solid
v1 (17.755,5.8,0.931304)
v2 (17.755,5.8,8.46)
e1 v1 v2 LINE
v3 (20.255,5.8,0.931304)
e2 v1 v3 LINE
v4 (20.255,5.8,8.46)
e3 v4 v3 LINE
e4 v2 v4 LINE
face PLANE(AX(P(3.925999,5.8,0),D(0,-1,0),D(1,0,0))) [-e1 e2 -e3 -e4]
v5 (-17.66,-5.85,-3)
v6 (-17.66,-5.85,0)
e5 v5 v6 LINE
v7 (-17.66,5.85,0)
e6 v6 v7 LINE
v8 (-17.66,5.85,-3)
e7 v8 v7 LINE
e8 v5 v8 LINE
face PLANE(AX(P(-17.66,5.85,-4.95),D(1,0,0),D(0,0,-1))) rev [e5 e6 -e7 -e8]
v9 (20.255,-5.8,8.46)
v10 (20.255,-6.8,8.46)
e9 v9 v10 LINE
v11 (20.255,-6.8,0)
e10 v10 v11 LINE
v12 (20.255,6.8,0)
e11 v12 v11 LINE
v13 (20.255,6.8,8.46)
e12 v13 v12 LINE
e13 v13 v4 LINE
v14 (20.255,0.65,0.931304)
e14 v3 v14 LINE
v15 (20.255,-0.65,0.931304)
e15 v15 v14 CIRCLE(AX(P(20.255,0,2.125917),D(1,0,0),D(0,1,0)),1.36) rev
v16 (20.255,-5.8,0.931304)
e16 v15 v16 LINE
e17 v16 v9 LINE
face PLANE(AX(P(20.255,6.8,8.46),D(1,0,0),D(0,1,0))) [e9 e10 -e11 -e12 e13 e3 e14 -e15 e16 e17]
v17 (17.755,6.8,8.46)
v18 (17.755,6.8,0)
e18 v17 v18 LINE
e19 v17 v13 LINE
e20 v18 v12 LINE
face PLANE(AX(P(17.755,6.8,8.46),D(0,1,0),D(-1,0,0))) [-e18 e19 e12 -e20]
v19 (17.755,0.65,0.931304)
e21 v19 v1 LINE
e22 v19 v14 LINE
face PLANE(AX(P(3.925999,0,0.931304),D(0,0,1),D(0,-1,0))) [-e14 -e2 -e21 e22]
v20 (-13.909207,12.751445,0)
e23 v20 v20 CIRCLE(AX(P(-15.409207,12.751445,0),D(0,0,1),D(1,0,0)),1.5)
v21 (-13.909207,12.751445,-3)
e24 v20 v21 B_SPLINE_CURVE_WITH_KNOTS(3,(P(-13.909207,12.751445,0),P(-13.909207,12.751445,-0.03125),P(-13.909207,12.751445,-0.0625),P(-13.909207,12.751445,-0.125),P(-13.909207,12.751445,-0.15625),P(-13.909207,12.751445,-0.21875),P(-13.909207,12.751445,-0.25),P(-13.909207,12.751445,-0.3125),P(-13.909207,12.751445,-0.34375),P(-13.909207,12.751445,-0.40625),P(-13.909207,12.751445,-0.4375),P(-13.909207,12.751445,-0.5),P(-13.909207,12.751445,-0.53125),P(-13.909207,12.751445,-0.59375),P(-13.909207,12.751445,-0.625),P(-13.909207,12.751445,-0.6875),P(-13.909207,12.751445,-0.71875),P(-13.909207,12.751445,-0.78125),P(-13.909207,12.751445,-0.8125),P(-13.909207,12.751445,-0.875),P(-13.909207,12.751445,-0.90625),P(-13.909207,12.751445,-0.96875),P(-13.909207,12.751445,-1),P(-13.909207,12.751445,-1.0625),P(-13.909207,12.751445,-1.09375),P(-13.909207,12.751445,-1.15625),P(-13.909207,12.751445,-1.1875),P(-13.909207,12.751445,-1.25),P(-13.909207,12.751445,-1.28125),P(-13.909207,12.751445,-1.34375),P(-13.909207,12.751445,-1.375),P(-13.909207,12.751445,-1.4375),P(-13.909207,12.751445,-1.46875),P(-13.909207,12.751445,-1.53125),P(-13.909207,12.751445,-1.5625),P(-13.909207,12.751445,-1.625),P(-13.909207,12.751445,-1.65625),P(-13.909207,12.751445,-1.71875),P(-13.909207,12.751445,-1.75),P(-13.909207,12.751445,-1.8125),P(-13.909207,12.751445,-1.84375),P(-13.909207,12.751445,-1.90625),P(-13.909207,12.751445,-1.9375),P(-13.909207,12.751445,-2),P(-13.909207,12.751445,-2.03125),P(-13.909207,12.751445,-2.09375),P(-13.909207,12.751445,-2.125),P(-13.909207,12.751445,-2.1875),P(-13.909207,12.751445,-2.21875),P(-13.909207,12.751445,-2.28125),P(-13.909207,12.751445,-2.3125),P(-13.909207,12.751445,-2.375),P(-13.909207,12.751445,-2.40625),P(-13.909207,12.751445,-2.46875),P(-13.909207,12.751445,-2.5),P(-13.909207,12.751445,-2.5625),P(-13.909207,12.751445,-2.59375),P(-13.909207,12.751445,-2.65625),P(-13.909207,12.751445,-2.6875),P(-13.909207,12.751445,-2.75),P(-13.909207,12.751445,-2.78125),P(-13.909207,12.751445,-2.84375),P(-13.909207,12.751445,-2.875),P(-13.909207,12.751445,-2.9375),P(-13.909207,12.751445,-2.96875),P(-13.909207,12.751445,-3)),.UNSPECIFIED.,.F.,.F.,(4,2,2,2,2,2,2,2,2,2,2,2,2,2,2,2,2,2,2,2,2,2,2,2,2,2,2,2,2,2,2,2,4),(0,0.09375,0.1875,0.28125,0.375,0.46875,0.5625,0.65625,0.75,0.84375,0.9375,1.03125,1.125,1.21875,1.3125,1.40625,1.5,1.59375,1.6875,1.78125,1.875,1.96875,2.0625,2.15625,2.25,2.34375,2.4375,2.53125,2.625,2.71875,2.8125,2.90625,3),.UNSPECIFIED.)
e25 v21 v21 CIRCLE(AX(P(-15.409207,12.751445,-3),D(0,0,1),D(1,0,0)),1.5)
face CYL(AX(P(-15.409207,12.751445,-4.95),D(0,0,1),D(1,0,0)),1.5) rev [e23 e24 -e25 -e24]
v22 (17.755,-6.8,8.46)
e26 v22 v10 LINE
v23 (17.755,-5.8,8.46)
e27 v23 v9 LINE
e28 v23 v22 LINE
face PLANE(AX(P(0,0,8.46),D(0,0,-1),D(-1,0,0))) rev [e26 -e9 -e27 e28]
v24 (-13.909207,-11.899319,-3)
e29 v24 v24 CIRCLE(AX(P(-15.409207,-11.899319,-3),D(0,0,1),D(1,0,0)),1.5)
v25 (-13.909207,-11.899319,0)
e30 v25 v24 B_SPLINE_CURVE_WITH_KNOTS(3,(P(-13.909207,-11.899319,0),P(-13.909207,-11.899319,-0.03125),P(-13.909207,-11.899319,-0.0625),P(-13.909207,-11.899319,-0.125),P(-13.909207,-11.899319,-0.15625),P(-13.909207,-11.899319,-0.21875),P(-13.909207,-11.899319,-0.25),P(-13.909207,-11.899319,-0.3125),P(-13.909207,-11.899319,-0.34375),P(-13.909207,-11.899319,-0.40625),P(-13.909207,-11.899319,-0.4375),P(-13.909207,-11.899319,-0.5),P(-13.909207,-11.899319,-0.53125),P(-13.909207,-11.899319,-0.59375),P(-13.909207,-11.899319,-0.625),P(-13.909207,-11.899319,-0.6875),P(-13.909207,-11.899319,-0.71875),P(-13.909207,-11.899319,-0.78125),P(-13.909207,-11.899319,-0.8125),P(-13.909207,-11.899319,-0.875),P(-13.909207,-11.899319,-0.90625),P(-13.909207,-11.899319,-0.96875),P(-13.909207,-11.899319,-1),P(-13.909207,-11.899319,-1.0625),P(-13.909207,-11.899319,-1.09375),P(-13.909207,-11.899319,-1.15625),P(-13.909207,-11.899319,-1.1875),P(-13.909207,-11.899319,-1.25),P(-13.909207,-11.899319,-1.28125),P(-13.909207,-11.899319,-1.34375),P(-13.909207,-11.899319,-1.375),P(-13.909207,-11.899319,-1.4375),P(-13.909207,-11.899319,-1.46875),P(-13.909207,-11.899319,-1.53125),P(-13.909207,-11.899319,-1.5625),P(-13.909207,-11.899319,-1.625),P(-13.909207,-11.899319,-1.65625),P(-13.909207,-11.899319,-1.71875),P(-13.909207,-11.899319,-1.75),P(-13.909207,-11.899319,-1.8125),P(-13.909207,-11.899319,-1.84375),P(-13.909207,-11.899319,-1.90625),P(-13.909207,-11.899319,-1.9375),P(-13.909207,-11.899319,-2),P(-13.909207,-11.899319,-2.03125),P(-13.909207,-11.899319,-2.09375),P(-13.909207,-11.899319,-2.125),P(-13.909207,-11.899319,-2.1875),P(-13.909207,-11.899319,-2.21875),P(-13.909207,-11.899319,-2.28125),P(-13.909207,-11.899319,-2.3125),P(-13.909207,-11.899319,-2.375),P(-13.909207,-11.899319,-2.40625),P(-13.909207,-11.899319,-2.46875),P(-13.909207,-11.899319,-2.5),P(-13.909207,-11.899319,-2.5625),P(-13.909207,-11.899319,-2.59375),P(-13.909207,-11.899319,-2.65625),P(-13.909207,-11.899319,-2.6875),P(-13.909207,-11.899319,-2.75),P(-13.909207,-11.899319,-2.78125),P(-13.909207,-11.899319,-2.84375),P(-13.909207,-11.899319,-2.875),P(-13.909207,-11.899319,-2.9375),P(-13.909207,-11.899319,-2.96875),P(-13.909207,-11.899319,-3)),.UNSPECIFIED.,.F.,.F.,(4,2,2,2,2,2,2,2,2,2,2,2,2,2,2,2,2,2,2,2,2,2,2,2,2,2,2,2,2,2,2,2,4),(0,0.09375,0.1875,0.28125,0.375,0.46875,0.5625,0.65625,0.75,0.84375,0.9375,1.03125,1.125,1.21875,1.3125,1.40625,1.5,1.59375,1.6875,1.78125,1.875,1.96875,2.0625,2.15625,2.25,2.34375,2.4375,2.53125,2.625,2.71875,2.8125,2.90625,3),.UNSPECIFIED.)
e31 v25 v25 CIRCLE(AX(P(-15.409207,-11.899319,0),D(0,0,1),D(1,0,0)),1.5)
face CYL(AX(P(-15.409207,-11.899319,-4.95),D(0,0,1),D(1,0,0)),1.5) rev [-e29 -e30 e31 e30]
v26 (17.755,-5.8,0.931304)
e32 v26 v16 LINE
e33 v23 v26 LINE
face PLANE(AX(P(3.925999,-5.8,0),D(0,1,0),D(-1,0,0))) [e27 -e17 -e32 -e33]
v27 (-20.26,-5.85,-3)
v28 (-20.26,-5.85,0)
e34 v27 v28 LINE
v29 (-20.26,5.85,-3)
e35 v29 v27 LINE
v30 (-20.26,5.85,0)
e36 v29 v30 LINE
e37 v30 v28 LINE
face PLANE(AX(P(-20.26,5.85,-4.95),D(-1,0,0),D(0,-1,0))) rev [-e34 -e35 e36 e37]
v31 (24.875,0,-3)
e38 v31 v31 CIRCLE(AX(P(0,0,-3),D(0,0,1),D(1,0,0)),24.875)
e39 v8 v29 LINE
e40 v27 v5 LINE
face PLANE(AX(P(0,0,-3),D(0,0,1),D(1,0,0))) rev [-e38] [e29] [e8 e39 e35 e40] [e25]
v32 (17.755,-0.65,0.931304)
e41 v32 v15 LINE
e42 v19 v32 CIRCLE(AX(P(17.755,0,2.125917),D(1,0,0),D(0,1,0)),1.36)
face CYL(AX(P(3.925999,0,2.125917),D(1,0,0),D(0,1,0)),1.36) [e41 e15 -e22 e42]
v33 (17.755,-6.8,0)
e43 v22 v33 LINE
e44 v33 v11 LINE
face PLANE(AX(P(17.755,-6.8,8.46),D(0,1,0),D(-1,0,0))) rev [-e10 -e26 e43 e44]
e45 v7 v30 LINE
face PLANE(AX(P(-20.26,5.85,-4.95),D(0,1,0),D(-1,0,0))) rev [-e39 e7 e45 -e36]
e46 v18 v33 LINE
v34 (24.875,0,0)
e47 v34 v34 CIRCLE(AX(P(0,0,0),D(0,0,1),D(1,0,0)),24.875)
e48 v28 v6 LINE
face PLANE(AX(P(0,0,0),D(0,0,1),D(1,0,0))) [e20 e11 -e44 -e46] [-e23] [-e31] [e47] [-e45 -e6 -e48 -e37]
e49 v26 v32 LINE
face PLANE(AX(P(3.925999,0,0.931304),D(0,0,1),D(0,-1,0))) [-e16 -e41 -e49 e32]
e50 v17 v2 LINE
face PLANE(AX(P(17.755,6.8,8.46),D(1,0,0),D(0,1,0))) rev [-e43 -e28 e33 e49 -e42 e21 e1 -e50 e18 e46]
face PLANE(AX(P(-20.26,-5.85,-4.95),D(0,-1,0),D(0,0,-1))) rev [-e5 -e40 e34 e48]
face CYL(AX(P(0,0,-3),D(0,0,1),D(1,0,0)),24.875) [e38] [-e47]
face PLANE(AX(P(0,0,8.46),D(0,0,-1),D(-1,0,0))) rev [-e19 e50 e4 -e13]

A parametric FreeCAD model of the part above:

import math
import FreeCAD as App
import Part
import Sketcher
from FreeCAD import Vector
Q = App.Units.Quantity

doc = App.newDocument("Part")
body = doc.addObject("PartDesign::Body", "Body")

sketch1 = doc.addObject("Sketcher::SketchObject", "Sketch")
body.addObject(sketch1)
sketch1.AttachmentSupport = (doc.XY_Plane, [""])
sketch1.MapMode = "FlatFace"
sketch1.addGeometry(Part.Circle(Vector(0, 0, 0), Vector(0, 0, 1), 24.875), False)
sketch1.addConstraint(Sketcher.Constraint("Coincident", 0, 3, -1, 1))
sketch1.addConstraint(Sketcher.Constraint("Diameter", 0, Q("49.75 mm")))
pad1 = doc.addObject("PartDesign::Pad", "Pad")
body.addObject(pad1)
pad1.Profile = sketch1
pad1.Length = 3
pad1.Reversed = True

sketch2 = doc.addObject("Sketcher::SketchObject", "Sketch001")
body.addObject(sketch2)
sketch2.AttachmentSupport = (doc.XY_Plane, [""])
sketch2.MapMode = "FlatFace"
sketch2.addGeometry(Part.LineSegment(Vector(17.755, 6.8, 0), Vector(17.755, -6.8, 0)), False)
sketch2.addGeometry(Part.LineSegment(Vector(17.755, -6.8, 0), Vector(20.255, -6.8, 0)), False)
sketch2.addGeometry(Part.LineSegment(Vector(20.255, -6.8, 0), Vector(20.255, 6.8, 0)), False)
sketch2.addGeometry(Part.LineSegment(Vector(20.255, 6.8, 0), Vector(17.755, 6.8, 0)), False)
sketch2.addConstraint(Sketcher.Constraint("Coincident", 0, 2, 1, 1))
sketch2.addConstraint(Sketcher.Constraint("Coincident", 1, 2, 2, 1))
sketch2.addConstraint(Sketcher.Constraint("Coincident", 2, 2, 3, 1))
sketch2.addConstraint(Sketcher.Constraint("Coincident", 3, 2, 0, 1))
sketch2.addConstraint(Sketcher.Constraint("Vertical", 0))
sketch2.addConstraint(Sketcher.Constraint("Horizontal", 1))
sketch2.addConstraint(Sketcher.Constraint("Vertical", 2))
sketch2.addConstraint(Sketcher.Constraint("Horizontal", 3))
sketch2.addConstraint(Sketcher.Constraint("DistanceX", 1, 1, 1, 2, Q("2.5 mm")))
sketch2.addConstraint(Sketcher.Constraint("DistanceY", 0, 2, 0, 1, Q("13.6 mm")))
sketch2.addConstraint(Sketcher.Constraint("DistanceY", 0, 2, -1, 1, Q("6.8 mm")))
sketch2.addConstraint(Sketcher.Constraint("DistanceX", -1, 1, 0, 2, Q("17.755 mm")))
pad2 = doc.addObject("PartDesign::Pad", "Pad001")
body.addObject(pad2)
pad2.Profile = sketch2
pad2.Length = 8.46

sketch3 = doc.addObject("Sketcher::SketchObject", "Sketch002")
body.addObject(sketch3)
sketch3.AttachmentSupport = (doc.YZ_Plane, [""])
sketch3.MapMode = "FlatFace"
sketch3.AttachmentOffset = App.Placement(Vector(0, 0, 20.255), App.Rotation())
sketch3.addGeometry(Part.ArcOfCircle(Part.Circle(Vector(0, 2.125917, 0), Vector(0, 0, 1), 1.36), math.radians(-61.448977), math.radians(241.448977)), False)
sketch3.addGeometry(Part.LineSegment(Vector(0.65, 0.931304, 0), Vector(5.8, 0.931304, 0)), False)
sketch3.addGeometry(Part.LineSegment(Vector(5.8, 0.931304, 0), Vector(5.8, 8.46, 0)), False)
sketch3.addGeometry(Part.LineSegment(Vector(5.8, 8.46, 0), Vector(-5.8, 8.46, 0)), False)
sketch3.addGeometry(Part.LineSegment(Vector(-5.8, 8.46, 0), Vector(-5.8, 0.931304, 0)), False)
sketch3.addGeometry(Part.LineSegment(Vector(-5.8, 0.931304, 0), Vector(-0.65, 0.931304, 0)), False)
sketch3.addConstraint(Sketcher.Constraint("Coincident", 0, 1, 1, 1))
sketch3.addConstraint(Sketcher.Constraint("Coincident", 1, 2, 2, 1))
sketch3.addConstraint(Sketcher.Constraint("Coincident", 2, 2, 3, 1))
sketch3.addConstraint(Sketcher.Constraint("Coincident", 3, 2, 4, 1))
sketch3.addConstraint(Sketcher.Constraint("Coincident", 4, 2, 5, 1))
sketch3.addConstraint(Sketcher.Constraint("Coincident", 5, 2, 0, 2))
sketch3.addConstraint(Sketcher.Constraint("Horizontal", 1))
sketch3.addConstraint(Sketcher.Constraint("Vertical", 2))
sketch3.addConstraint(Sketcher.Constraint("Horizontal", 3))
sketch3.addConstraint(Sketcher.Constraint("Vertical", 4))
sketch3.addConstraint(Sketcher.Constraint("Horizontal", 5))
sketch3.addConstraint(Sketcher.Constraint("Symmetric", 1, 2, 4, 2, -2))
sketch3.addConstraint(Sketcher.Constraint("PointOnObject", 0, 3, -2))
sketch3.addConstraint(Sketcher.Constraint("Radius", 0, Q("1.36 mm")))
sketch3.addConstraint(Sketcher.Constraint("DistanceX", 3, 2, 3, 1, Q("11.6 mm")))
sketch3.addConstraint(Sketcher.Constraint("DistanceX", 1, 1, 1, 2, Q("5.15 mm")))
sketch3.addConstraint(Sketcher.Constraint("DistanceY", -1, 1, 2, 2, Q("8.46 mm")))
sketch3.addConstraint(Sketcher.Constraint("DistanceY", 2, 1, 2, 2, Q("7.528696 mm")))
pocket1 = doc.addObject("PartDesign::Pocket", "Pocket")
body.addObject(pocket1)
pocket1.Profile = sketch3
pocket1.Length = 2.5

sketch4 = doc.addObject("Sketcher::SketchObject", "Sketch003")
body.addObject(sketch4)
sketch4.AttachmentSupport = (doc.XY_Plane, [""])
sketch4.MapMode = "FlatFace"
sketch4.addGeometry(Part.Circle(Vector(-15.409207, 12.751445, 0), Vector(0, 0, 1), 1.5), False)
sketch4.addGeometry(Part.Circle(Vector(-15.409207, -11.899319, 0), Vector(0, 0, 1), 1.5), False)
sketch4.addConstraint(Sketcher.Constraint("Equal", 0, 1))
sketch4.addConstraint(Sketcher.Constraint("Vertical", 0, 3, 1, 3))
sketch4.addConstraint(Sketcher.Constraint("Diameter", 0, Q("3 mm")))
sketch4.addConstraint(Sketcher.Constraint("DistanceY", 1, 3, -1, 1, Q("11.899319 mm")))
sketch4.addConstraint(Sketcher.Constraint("DistanceX", 0, 3, -1, 1, Q("15.409207 mm")))
sketch4.addConstraint(Sketcher.Constraint("DistanceY", -1, 1, 0, 3, Q("12.751445 mm")))
pocket2 = doc.addObject("PartDesign::Pocket", "Pocket001")
body.addObject(pocket2)
pocket2.Profile = sketch4
pocket2.Length = 4.95

sketch5 = doc.addObject("Sketcher::SketchObject", "Sketch004")
body.addObject(sketch5)
sketch5.AttachmentSupport = (doc.XY_Plane, [""])
sketch5.MapMode = "FlatFace"
sketch5.addGeometry(Part.LineSegment(Vector(-20.26, 5.85, 0), Vector(-20.26, -5.85, 0)), False)
sketch5.addGeometry(Part.LineSegment(Vector(-20.26, -5.85, 0), Vector(-17.66, -5.85, 0)), False)
sketch5.addGeometry(Part.LineSegment(Vector(-17.66, -5.85, 0), Vector(-17.66, 5.85, 0)), False)
sketch5.addGeometry(Part.LineSegment(Vector(-17.66, 5.85, 0), Vector(-20.26, 5.85, 0)), False)
sketch5.addConstraint(Sketcher.Constraint("Coincident", 0, 2, 1, 1))
sketch5.addConstraint(Sketcher.Constraint("Coincident", 1, 2, 2, 1))
sketch5.addConstraint(Sketcher.Constraint("Coincident", 2, 2, 3, 1))
sketch5.addConstraint(Sketcher.Constraint("Coincident", 3, 2, 0, 1))
sketch5.addConstraint(Sketcher.Constraint("Vertical", 0))
sketch5.addConstraint(Sketcher.Constraint("Horizontal", 1))
sketch5.addConstraint(Sketcher.Constraint("Vertical", 2))
sketch5.addConstraint(Sketcher.Constraint("Horizontal", 3))
sketch5.addConstraint(Sketcher.Constraint("DistanceX", 1, 1, 1, 2, Q("2.6 mm")))
sketch5.addConstraint(Sketcher.Constraint("DistanceY", 0, 2, 0, 1, Q("11.7 mm")))
sketch5.addConstraint(Sketcher.Constraint("DistanceX", 0, 2, -1, 1, Q("20.26 mm")))
sketch5.addConstraint(Sketcher.Constraint("DistanceY", 0, 2, -1, 1, Q("5.85 mm")))
pocket3 = doc.addObject("PartDesign::Pocket", "Pocket002")
body.addObject(pocket3)
pocket3.Profile = sketch5
pocket3.Length = 4.95

doc.recompute()
